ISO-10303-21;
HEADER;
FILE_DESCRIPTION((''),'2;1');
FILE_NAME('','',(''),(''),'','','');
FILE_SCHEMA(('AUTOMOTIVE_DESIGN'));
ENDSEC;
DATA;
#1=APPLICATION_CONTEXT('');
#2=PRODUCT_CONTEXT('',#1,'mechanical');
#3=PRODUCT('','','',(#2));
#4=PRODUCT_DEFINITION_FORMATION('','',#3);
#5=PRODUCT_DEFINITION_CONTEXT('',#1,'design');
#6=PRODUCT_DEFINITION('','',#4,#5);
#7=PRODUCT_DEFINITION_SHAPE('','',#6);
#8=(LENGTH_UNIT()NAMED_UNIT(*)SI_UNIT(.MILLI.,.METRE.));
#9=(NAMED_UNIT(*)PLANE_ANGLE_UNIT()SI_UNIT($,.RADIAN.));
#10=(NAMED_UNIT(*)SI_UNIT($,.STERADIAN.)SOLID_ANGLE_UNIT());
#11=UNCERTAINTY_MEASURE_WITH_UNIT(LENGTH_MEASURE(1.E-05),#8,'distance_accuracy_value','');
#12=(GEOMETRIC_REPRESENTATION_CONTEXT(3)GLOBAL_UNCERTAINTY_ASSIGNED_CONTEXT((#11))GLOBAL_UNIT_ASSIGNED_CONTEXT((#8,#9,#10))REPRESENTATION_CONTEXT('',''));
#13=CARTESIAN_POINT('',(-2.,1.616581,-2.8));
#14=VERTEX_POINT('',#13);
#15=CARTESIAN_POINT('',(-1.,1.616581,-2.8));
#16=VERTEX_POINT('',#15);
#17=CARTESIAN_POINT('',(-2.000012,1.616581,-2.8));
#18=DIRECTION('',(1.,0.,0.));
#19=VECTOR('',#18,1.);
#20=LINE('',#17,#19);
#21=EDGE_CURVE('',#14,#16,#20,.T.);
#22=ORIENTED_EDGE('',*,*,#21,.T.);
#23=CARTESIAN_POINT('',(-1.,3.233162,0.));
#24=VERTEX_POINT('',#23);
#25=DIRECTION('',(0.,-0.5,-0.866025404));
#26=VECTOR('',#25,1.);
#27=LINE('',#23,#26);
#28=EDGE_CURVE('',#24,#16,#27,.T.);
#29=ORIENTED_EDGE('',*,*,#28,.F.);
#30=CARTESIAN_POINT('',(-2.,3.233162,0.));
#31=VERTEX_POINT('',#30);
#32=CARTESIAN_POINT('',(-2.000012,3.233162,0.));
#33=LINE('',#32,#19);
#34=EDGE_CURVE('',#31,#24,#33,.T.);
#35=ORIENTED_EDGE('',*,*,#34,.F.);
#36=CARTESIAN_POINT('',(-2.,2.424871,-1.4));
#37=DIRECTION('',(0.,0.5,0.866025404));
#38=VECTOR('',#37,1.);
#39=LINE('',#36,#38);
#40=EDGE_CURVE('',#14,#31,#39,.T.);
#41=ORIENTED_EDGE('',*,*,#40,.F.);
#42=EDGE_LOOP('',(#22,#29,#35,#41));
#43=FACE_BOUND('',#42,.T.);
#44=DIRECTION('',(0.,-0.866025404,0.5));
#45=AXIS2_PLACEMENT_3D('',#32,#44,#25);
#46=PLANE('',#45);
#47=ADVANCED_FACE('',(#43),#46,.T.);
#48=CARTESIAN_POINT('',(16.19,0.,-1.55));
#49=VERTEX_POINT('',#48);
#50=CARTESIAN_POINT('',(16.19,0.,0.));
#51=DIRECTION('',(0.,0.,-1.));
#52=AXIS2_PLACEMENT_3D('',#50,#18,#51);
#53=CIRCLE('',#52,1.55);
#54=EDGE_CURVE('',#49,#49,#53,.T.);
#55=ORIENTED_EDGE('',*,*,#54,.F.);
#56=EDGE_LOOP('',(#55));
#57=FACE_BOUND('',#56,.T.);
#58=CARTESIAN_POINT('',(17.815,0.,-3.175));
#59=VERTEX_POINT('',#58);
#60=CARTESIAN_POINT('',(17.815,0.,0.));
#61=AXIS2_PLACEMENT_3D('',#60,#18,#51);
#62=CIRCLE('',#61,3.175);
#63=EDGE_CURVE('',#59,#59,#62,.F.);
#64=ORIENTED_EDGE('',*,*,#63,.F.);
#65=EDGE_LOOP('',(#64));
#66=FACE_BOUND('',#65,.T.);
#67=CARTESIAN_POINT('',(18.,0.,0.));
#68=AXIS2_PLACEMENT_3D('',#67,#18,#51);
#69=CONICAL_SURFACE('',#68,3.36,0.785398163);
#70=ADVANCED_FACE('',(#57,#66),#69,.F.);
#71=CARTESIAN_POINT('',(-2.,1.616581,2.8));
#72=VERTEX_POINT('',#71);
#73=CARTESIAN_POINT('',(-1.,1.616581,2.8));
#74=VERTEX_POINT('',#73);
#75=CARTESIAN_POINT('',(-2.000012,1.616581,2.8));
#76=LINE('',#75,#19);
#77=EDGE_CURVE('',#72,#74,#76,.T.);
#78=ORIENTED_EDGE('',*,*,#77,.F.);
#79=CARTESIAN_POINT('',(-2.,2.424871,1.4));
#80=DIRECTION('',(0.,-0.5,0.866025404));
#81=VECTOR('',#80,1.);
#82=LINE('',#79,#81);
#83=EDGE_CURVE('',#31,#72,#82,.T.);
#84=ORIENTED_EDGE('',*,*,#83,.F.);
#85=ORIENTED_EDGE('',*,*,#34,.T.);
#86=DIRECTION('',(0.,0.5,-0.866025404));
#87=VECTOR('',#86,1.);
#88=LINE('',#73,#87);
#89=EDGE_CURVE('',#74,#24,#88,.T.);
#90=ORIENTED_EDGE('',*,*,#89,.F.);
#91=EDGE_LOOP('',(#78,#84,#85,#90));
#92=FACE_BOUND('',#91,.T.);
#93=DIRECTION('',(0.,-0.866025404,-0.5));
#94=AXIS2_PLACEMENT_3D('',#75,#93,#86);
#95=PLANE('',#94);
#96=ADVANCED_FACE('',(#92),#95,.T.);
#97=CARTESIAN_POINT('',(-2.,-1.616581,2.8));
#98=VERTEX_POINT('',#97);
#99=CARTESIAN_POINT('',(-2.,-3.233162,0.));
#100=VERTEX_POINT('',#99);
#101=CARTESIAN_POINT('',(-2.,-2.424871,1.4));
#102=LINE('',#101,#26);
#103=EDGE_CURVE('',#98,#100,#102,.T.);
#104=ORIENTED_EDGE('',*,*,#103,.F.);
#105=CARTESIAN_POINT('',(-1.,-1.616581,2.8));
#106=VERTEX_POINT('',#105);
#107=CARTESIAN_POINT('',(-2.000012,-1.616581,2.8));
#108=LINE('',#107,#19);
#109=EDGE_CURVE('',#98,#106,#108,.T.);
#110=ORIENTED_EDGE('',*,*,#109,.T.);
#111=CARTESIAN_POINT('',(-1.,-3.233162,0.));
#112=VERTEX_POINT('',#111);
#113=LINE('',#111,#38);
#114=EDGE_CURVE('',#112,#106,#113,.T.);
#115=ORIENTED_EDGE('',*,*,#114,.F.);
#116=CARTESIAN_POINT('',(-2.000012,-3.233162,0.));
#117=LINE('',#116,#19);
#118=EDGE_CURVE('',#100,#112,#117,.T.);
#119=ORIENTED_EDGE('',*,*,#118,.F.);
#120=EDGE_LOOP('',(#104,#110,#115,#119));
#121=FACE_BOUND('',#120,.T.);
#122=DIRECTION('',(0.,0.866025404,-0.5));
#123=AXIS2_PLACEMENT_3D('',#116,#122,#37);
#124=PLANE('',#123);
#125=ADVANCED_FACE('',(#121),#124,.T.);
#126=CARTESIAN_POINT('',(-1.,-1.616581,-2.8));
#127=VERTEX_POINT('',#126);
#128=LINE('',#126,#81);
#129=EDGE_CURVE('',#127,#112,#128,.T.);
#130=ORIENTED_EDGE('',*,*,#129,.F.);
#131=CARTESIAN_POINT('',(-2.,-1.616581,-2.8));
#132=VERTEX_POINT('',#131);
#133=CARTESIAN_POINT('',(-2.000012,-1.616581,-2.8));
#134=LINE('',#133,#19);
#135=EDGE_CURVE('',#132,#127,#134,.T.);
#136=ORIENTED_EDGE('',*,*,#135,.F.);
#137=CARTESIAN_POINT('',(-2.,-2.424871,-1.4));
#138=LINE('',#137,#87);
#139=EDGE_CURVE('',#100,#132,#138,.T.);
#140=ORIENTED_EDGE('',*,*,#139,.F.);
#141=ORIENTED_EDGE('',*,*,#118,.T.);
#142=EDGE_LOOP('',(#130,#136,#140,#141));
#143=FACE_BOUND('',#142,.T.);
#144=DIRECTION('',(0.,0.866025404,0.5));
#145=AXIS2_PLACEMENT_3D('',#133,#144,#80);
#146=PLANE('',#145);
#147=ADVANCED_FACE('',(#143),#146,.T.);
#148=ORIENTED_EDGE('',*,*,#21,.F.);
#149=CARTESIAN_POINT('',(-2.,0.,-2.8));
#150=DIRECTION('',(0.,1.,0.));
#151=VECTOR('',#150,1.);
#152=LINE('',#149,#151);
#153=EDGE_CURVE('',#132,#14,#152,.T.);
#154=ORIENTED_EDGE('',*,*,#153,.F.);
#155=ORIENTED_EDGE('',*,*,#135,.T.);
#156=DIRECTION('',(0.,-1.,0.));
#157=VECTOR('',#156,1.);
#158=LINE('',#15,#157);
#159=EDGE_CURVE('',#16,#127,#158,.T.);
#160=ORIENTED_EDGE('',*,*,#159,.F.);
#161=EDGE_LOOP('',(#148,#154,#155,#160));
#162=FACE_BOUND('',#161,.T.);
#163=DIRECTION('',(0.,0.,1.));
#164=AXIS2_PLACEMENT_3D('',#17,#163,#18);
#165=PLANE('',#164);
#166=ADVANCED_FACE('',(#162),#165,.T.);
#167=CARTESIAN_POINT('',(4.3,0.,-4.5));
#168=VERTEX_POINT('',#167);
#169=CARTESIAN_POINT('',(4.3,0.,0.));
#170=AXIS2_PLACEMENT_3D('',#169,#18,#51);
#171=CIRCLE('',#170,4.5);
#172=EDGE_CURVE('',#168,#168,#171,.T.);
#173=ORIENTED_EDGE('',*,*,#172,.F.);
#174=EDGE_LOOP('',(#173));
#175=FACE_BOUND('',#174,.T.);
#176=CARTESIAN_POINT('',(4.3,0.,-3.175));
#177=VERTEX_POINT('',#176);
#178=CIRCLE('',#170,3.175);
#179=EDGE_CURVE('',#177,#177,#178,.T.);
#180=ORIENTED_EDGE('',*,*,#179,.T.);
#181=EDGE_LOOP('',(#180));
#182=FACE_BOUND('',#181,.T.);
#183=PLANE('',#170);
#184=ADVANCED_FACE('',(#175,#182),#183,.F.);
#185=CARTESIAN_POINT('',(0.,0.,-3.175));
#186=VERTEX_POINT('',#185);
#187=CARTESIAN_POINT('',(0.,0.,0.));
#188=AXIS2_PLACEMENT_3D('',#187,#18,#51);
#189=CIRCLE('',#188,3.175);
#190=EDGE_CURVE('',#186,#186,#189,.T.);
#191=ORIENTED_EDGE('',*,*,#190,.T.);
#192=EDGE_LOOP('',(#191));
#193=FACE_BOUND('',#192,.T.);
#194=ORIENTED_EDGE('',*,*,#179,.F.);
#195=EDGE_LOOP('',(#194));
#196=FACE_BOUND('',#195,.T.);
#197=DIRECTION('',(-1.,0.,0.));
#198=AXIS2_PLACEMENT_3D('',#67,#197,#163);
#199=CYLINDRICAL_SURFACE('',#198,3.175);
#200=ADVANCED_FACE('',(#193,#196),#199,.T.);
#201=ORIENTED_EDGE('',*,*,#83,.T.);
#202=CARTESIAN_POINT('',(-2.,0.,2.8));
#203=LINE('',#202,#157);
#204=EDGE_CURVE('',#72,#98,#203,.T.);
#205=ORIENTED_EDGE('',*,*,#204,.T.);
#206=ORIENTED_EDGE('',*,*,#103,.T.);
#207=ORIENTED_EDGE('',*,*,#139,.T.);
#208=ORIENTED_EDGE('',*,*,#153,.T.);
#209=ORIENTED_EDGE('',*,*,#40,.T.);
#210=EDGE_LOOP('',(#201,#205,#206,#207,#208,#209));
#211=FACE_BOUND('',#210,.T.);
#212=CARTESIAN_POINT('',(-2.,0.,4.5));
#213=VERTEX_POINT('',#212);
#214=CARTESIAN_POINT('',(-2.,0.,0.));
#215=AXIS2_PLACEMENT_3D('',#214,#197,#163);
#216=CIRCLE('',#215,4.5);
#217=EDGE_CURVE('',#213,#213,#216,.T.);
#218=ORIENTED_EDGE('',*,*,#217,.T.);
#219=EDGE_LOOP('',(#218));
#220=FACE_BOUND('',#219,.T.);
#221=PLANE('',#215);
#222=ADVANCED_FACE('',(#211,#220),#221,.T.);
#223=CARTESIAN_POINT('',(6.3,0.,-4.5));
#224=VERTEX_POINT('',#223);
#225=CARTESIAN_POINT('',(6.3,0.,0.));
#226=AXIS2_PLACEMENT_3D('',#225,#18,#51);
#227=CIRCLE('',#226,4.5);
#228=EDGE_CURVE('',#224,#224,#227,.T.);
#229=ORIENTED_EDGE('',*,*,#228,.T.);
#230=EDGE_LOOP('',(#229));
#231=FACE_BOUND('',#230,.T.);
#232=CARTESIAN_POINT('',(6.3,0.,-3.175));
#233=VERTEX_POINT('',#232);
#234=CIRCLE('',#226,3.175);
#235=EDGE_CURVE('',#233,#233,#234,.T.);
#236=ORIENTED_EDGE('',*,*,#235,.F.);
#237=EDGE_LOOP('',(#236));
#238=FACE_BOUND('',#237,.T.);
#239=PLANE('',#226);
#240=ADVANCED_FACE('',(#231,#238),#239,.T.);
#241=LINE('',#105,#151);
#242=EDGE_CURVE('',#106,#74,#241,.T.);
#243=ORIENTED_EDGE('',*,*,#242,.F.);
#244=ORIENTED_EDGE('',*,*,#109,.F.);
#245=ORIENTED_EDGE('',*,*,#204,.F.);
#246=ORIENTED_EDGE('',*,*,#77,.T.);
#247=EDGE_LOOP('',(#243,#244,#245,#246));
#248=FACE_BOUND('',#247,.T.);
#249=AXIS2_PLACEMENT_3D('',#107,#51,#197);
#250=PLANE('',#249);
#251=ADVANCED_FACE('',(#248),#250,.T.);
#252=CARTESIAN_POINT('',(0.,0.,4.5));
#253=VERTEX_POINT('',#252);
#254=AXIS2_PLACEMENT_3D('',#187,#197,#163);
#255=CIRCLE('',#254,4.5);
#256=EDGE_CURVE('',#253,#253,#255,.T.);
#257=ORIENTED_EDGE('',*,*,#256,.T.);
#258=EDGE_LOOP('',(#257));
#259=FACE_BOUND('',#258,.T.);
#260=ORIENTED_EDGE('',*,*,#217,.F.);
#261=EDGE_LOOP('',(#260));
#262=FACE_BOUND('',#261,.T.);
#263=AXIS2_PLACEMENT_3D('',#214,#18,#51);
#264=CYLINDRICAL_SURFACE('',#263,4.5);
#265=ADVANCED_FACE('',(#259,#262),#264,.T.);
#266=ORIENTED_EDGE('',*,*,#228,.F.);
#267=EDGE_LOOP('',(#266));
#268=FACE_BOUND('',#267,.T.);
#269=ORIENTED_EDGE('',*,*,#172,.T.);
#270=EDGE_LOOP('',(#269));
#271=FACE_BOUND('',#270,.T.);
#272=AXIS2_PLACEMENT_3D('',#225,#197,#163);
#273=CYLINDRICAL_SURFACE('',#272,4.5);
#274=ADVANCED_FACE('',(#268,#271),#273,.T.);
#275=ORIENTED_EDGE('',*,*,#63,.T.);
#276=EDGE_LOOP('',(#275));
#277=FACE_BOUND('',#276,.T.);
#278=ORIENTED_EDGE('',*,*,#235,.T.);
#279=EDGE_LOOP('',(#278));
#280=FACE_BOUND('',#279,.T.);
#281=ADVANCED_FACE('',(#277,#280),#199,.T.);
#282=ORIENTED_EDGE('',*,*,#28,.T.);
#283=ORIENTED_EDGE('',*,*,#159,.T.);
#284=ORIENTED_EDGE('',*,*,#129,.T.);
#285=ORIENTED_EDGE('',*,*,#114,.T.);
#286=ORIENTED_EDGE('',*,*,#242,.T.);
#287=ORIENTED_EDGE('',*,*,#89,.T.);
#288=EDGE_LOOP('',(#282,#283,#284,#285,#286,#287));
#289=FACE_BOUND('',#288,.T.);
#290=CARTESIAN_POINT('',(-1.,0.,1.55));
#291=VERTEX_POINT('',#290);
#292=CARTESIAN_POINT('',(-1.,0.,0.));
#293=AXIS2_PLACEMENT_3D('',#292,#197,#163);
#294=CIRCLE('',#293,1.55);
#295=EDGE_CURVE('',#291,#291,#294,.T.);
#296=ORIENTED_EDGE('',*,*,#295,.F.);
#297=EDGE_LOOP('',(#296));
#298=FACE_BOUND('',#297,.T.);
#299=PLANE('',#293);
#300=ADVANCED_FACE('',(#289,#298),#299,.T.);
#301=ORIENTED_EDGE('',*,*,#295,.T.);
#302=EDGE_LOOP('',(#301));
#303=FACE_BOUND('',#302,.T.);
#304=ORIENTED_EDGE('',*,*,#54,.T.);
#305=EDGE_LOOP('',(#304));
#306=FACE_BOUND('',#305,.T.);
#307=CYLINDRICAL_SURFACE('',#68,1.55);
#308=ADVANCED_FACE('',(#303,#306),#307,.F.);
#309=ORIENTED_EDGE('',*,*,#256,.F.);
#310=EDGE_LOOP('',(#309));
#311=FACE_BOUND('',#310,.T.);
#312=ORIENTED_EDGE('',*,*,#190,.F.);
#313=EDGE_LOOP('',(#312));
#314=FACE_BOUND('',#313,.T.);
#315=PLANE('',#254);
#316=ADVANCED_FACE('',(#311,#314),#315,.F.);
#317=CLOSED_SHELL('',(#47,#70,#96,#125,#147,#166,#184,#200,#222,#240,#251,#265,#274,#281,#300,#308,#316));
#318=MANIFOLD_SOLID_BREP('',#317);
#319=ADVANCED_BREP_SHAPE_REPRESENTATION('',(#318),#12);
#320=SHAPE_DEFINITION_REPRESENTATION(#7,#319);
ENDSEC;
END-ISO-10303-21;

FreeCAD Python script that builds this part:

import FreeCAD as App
import Part
import Sketcher
Q = App.Units.Quantity


def add_polygon(sketch, points):
    """Adds a closed chain of lines whose ends are joined by coincident constraints."""
    first, n = sketch.GeometryCount, len(points)
    for a, b in zip(points, points[1:] + points[:1]):
        sketch.addGeometry(Part.LineSegment(App.Vector(*a, 0), App.Vector(*b, 0)), False)
    for i in range(n):
        sketch.addConstraint(Sketcher.Constraint("Coincident", first + i, 2, first + (i + 1) % n, 1))

doc = App.newDocument("Part")
body = doc.addObject("PartDesign::Body", "Body")

# Sketch on YZ plane
sketch1 = doc.addObject("Sketcher::SketchObject", "Sketch")
body.addObject(sketch1)
sketch1.AttachmentSupport = (doc.YZ_Plane, [""])
sketch1.MapMode = "FlatFace"
sketch1.addGeometry(Part.Circle(App.Vector(0, 0, 0), App.Vector(0, 0, 1), 3.175), False)
sketch1.addConstraint([
    Sketcher.Constraint("Coincident", 0, 3, -1, 1),
    Sketcher.Constraint("Diameter", 0, Q("6.35 mm")),
])
pad1 = doc.addObject("PartDesign::Pad", "Pad")
body.addObject(pad1)
pad1.Profile = sketch1
pad1.Length = 18

# Sketch on YZ plane
sketch2 = doc.addObject("Sketcher::SketchObject", "Sketch001")
body.addObject(sketch2)
sketch2.AttachmentSupport = (doc.YZ_Plane, [""])
sketch2.MapMode = "FlatFace"
sketch2.addGeometry(Part.Circle(App.Vector(0, 0, 0), App.Vector(0, 0, 1), 4.5), False)
sketch2.addConstraint([
    Sketcher.Constraint("Coincident", 0, 3, -1, 1),
    Sketcher.Constraint("Diameter", 0, Q("9 mm")),
])
pad2 = doc.addObject("PartDesign::Pad", "Pad001")
body.addObject(pad2)
pad2.Profile = sketch2
pad2.Length = 2
pad2.Reversed = True

# Sketch on YZ plane
sketch3 = doc.addObject("Sketcher::SketchObject", "Sketch002")
body.addObject(sketch3)
sketch3.AttachmentSupport = (doc.YZ_Plane, [""])
sketch3.MapMode = "FlatFace"
sketch3.AttachmentOffset = App.Placement(App.Vector(0, 0, 6.3), App.Rotation())
sketch3.addGeometry(Part.Circle(App.Vector(0, 0, 0), App.Vector(0, 0, 1), 4.5), False)
sketch3.addConstraint([
    Sketcher.Constraint("Coincident", 0, 3, -1, 1),
    Sketcher.Constraint("Diameter", 0, Q("9 mm")),
])
pad3 = doc.addObject("PartDesign::Pad", "Pad002")
body.addObject(pad3)
pad3.Profile = sketch3
pad3.Length = 2
pad3.Reversed = True

# Sketch on YZ plane
sketch4 = doc.addObject("Sketcher::SketchObject", "Sketch003")
body.addObject(sketch4)
sketch4.AttachmentSupport = (doc.YZ_Plane, [""])
sketch4.MapMode = "FlatFace"
sketch4.AttachmentOffset = App.Placement(App.Vector(0, 0, -2), App.Rotation())
sketch4.addGeometry(Part.Circle(App.Vector(0, 0, 0), App.Vector(0, 0, 1), 1.5), False)
sketch4.addConstraint([
    Sketcher.Constraint("Coincident", 0, 3, -1, 1),
    Sketcher.Constraint("Diameter", 0, Q("3 mm")),
])
pocket1 = doc.addObject("PartDesign::Pocket", "Pocket")
body.addObject(pocket1)
pocket1.Profile = sketch4
pocket1.Type = "ThroughAll"
pocket1.Midplane = True

# Sketch on YZ plane
sketch5 = doc.addObject("Sketcher::SketchObject", "Sketch004")
body.addObject(sketch5)
sketch5.AttachmentSupport = (doc.YZ_Plane, [""])
sketch5.MapMode = "FlatFace"
sketch5.AttachmentOffset = App.Placement(App.Vector(0, 0, -2), App.Rotation())
add_polygon(sketch5, [(-1.616581, 2.8), (1.616581, 2.8), (3.233162, 0), (1.616581, -2.8), (-1.616581, -2.8), (-3.233162, 0)])  # lines 0-5
sketch5.addConstraint([
    Sketcher.Constraint("Horizontal", 0),
    Sketcher.Constraint("Horizontal", 3),
    Sketcher.Constraint("Symmetric", 0, 2, 3, 2, -1, 1),
    Sketcher.Constraint("Symmetric", 1, 2, 4, 2, -1, 1),
    Sketcher.Constraint("PointOnObject", 1, 2, -1),
    Sketcher.Constraint("Parallel", 2, 5),
    Sketcher.Constraint("Vertical", 0, 2, 2, 2),
    Sketcher.Constraint("Angle", 1, Q("-60 deg")),
    Sketcher.Constraint("DistanceY", -1, 1, 0, 2, Q("2.8 mm")),
    Sketcher.Constraint("DistanceX", 0, 1, 0, 2, Q("3.233162 mm")),
])
pocket2 = doc.addObject("PartDesign::Pocket", "Pocket001")
body.addObject(pocket2)
pocket2.Profile = sketch5
pocket2.Type = "TwoLengths"
pocket2.Length = 21.988092
pocket2.Length2 = 1

# Sketch on YZ plane
sketch6 = doc.addObject("Sketcher::SketchObject", "Sketch005")
body.addObject(sketch6)
sketch6.AttachmentSupport = (doc.YZ_Plane, [""])
sketch6.MapMode = "FlatFace"
sketch6.AttachmentOffset = App.Placement(App.Vector(0, 0, 18), App.Rotation())
sketch6.addGeometry(Part.Circle(App.Vector(0, 0, 0), App.Vector(0, 0, 1), 1.55), False)
sketch6.addConstraint([
    Sketcher.Constraint("Coincident", 0, 3, -1, 1),
    Sketcher.Constraint("Diameter", 0, Q("3.1 mm")),
])
doc.recompute()
hole = doc.addObject("PartDesign::Hole", "Hole")
body.addObject(hole)
hole.Profile = sketch6
hole.ThreadType = "None"
hole.Diameter = 3.1
hole.DepthType = "Dimension"
hole.Depth = 25.068666
hole.DrillPoint = "Angled"
hole.DrillPointAngle = 118
hole.HoleCutType = "Countersink"
hole.HoleCutDiameter = 6.72
hole.HoleCutCountersinkAngle = 90

doc.recompute()
